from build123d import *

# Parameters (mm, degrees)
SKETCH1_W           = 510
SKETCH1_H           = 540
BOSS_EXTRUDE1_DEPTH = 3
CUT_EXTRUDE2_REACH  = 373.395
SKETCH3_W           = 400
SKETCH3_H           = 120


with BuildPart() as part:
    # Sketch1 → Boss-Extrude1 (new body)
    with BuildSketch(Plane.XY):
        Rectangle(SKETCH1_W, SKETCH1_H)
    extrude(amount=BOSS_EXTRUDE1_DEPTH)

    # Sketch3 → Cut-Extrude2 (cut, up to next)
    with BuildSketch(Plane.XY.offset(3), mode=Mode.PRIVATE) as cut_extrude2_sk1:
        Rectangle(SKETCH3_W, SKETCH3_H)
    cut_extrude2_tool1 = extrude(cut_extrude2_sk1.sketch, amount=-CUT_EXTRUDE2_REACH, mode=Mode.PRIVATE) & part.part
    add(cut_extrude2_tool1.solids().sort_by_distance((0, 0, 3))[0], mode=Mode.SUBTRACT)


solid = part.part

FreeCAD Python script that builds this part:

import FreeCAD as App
import Part
import Sketcher
from FreeCAD import Vector

doc = App.newDocument("Part")
body = doc.addObject("PartDesign::Body", "Body")

# Sketch on XY plane
sketch1 = body.newObject("Sketcher::SketchObject", "Sketch")
sketch1.AttachmentSupport = (doc.getObject("XY_Plane"), [""])
sketch1.MapMode = "FlatFace"
sketch1.addGeometry(Part.LineSegment(Vector(-255, 270, 0), Vector(-255, -270, 0)), False)
sketch1.addGeometry(Part.LineSegment(Vector(-255, -270, 0), Vector(255, -270, 0)), False)
sketch1.addGeometry(Part.LineSegment(Vector(255, -270, 0), Vector(255, 270, 0)), False)
sketch1.addGeometry(Part.LineSegment(Vector(255, 270, 0), Vector(-255, 270, 0)), False)
sketch1.addConstraint(Sketcher.Constraint("Coincident", 0, 2, 1, 1))
sketch1.addConstraint(Sketcher.Constraint("Coincident", 1, 2, 2, 1))
sketch1.addConstraint(Sketcher.Constraint("Coincident", 2, 2, 3, 1))
sketch1.addConstraint(Sketcher.Constraint("Coincident", 3, 2, 0, 1))
sketch1.addConstraint(Sketcher.Constraint("Vertical", 0))
sketch1.addConstraint(Sketcher.Constraint("Horizontal", 1))
sketch1.addConstraint(Sketcher.Constraint("Vertical", 2))
sketch1.addConstraint(Sketcher.Constraint("Horizontal", 3))
sketch1.addConstraint(Sketcher.Constraint("Symmetric", 0, 2, 2, 2, -1, 1))
sketch1.addConstraint(Sketcher.Constraint("DistanceX", 1, 1, 1, 2, 510.0))
sketch1.addConstraint(Sketcher.Constraint("DistanceY", 0, 2, 0, 1, 540.0))
pad1 = body.newObject("PartDesign::Pad", "Pad")
pad1.Profile = sketch1
pad1.Length = 3

# Sketch on XY plane
sketch2 = body.newObject("Sketcher::SketchObject", "Sketch001")
sketch2.AttachmentSupport = (doc.getObject("XY_Plane"), [""])
sketch2.MapMode = "FlatFace"
sketch2.AttachmentOffset = App.Placement(Vector(0, 0, 3), App.Rotation())
sketch2.addGeometry(Part.LineSegment(Vector(-200, 60, 0), Vector(-200, -60, 0)), False)
sketch2.addGeometry(Part.LineSegment(Vector(-200, -60, 0), Vector(200, -60, 0)), False)
sketch2.addGeometry(Part.LineSegment(Vector(200, -60, 0), Vector(200, 60, 0)), False)
sketch2.addGeometry(Part.LineSegment(Vector(200, 60, 0), Vector(-200, 60, 0)), False)
sketch2.addConstraint(Sketcher.Constraint("Coincident", 0, 2, 1, 1))
sketch2.addConstraint(Sketcher.Constraint("Coincident", 1, 2, 2, 1))
sketch2.addConstraint(Sketcher.Constraint("Coincident", 2, 2, 3, 1))
sketch2.addConstraint(Sketcher.Constraint("Coincident", 3, 2, 0, 1))
sketch2.addConstraint(Sketcher.Constraint("Vertical", 0))
sketch2.addConstraint(Sketcher.Constraint("Horizontal", 1))
sketch2.addConstraint(Sketcher.Constraint("Vertical", 2))
sketch2.addConstraint(Sketcher.Constraint("Horizontal", 3))
sketch2.addConstraint(Sketcher.Constraint("Symmetric", 0, 2, 2, 2, -1, 1))
sketch2.addConstraint(Sketcher.Constraint("DistanceX", 1, 1, 1, 2, 400.0))
sketch2.addConstraint(Sketcher.Constraint("DistanceY", 0, 2, 0, 1, 120.0))
pocket1 = body.newObject("PartDesign::Pocket", "Pocket")
pocket1.Profile = sketch2
pocket1.Type = "UpToFirst"

doc.recompute()
